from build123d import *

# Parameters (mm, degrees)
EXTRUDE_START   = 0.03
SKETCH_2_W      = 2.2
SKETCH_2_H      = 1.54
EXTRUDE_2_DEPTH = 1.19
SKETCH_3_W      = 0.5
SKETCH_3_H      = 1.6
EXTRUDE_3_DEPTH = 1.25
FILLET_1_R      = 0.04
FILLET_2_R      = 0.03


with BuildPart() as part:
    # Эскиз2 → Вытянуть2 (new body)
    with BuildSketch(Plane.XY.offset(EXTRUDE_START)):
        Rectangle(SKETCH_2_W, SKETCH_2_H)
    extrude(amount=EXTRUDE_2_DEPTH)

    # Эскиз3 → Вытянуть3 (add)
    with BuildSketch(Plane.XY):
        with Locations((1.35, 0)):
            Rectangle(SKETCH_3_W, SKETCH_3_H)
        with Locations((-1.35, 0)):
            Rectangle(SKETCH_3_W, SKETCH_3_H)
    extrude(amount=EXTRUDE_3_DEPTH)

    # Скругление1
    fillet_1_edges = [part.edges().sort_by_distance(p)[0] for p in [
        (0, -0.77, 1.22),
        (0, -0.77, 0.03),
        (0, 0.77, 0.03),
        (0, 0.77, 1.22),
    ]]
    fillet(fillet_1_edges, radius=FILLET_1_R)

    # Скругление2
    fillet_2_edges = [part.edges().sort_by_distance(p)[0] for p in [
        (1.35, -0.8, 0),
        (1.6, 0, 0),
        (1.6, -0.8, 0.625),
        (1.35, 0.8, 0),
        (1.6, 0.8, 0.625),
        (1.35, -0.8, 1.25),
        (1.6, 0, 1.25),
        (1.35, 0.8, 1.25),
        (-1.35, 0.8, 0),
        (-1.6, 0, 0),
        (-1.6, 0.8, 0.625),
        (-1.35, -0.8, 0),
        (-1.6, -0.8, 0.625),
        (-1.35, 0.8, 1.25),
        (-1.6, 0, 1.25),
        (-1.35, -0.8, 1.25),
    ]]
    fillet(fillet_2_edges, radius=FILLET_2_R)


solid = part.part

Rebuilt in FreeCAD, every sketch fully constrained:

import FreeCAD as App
import Part
import Sketcher


def edges_at(feature, points):
    """Names of the edges that pass closest to the given points."""
    edges = feature.Shape.Edges
    near = lambda p: min(range(len(edges)), key=lambda i: edges[i].distToShape(Part.Vertex(*p))[0])
    return sorted({f"Edge{near(p) + 1}" for p in points})


def add_polygon(sketch, points):
    """Adds a closed chain of lines whose ends are joined by coincident constraints."""
    first, n = sketch.GeometryCount, len(points)
    for a, b in zip(points, points[1:] + points[:1]):
        sketch.addGeometry(Part.LineSegment(App.Vector(*a, 0), App.Vector(*b, 0)), False)
    for i in range(n):
        sketch.addConstraint(Sketcher.Constraint("Coincident", first + i, 2, first + (i + 1) % n, 1))

doc = App.newDocument("Part")
params = doc.addObject("Spreadsheet::Sheet", "Params")
for row, (alias, value) in enumerate([
    ("sketch1_width", "2.2 mm"),
    ("sketch1_height", "1.54 mm"),
    ("pad1_length", "1.19 mm"),
    ("sketch2_width", "0.5 mm"),
    ("sketch2_height", "1.6 mm"),
    ("pad2_length", "1.25 mm"),
    ("fillet_radius", "0.04 mm"),
    ("fillet2_radius", "0.03 mm"),
], start=1):
    params.set(f"A{row}", alias)
    params.set(f"B{row}", "=" + value)
    params.setAlias(f"B{row}", alias)

body = doc.addObject("PartDesign::Body", "Body")

sketch1 = body.newObject("Sketcher::SketchObject", "Sketch")
sketch1.AttachmentSupport = (doc.getObject("XY_Plane"), [""])
sketch1.MapMode = "FlatFace"
sketch1.AttachmentOffset = App.Placement(App.Vector(0, 0, 0.03), App.Rotation())
add_polygon(sketch1, [(-1.1, 0.8), (-1.1, -0.8), (1.1, -0.8), (1.1, 0.8)])
sketch1.addConstraint([
    Sketcher.Constraint("Vertical", 0),
    Sketcher.Constraint("Horizontal", 1),
    Sketcher.Constraint("Vertical", 2),
    Sketcher.Constraint("Horizontal", 3),
    Sketcher.Constraint("Symmetric", 0, 2, 2, 2, -1, 1),
    Sketcher.Constraint("DistanceX", 1, 1, 1, 2, 2.2),
    Sketcher.Constraint("DistanceY", 0, 2, 0, 1, 1.54),
])
sketch1.setExpression("Constraints[9]", "Params.sketch1_width")
sketch1.setExpression("Constraints[10]", "Params.sketch1_height")
pad1 = body.newObject("PartDesign::Pad", "Pad")
pad1.Profile = sketch1
pad1.setExpression("Length", "Params.pad1_length")

sketch2 = body.newObject("Sketcher::SketchObject", "Sketch001")
sketch2.AttachmentSupport = (doc.getObject("XY_Plane"), [""])
sketch2.MapMode = "FlatFace"
add_polygon(sketch2, [(1.1, 0.8), (1.1, -0.8), (1.6, -0.8), (1.6, 0.8)])
add_polygon(sketch2, [(-1.6, 0.8), (-1.6, -0.8), (-1.1, -0.8), (-1.1, 0.8)])
sketch2.addConstraint([
    Sketcher.Constraint("Vertical", 0),
    Sketcher.Constraint("Horizontal", 1),
    Sketcher.Constraint("Vertical", 2),
    Sketcher.Constraint("Horizontal", 3),
    Sketcher.Constraint("Vertical", 4),
    Sketcher.Constraint("Horizontal", 5),
    Sketcher.Constraint("Vertical", 6),
    Sketcher.Constraint("Horizontal", 7),
    Sketcher.Constraint("Symmetric", 2, 2, 4, 2, -1, 1),
    Sketcher.Constraint("Symmetric", 0, 2, 6, 2, -1, 1),
    Sketcher.Constraint("Horizontal", 1, 2, 4, 2),
    Sketcher.Constraint("DistanceX", 1, 1, 1, 2, 0.5),
    Sketcher.Constraint("DistanceY", 0, 2, 0, 1, 1.6),
    Sketcher.Constraint("DistanceX", -1, 1, 0, 2, 1.1),
])
sketch2.setExpression("Constraints[19]", "Params.sketch2_width")
sketch2.setExpression("Constraints[20]", "Params.sketch2_height")
pad2 = body.newObject("PartDesign::Pad", "Pad001")
pad2.Profile = sketch2
pad2.setExpression("Length", "Params.pad2_length")
doc.recompute()

fillet = body.newObject("PartDesign::Fillet", "Fillet")
fillet.Base = (pad2, edges_at(pad2, [
    (0, -0.77, 1.22),
    (0, -0.77, 0.03),
    (0, 0.77, 0.03),
    (0, 0.77, 1.22),
]))
fillet.setExpression("Radius", "Params.fillet_radius")
doc.recompute()

fillet2 = body.newObject("PartDesign::Fillet", "Fillet001")
fillet2.Base = (fillet, edges_at(fillet, [
    (1.35, -0.8, 0),
    (1.6, 0, 0),
    (1.6, -0.8, 0.625),
    (1.35, 0.8, 0),
    (1.6, 0.8, 0.625),
    (1.35, -0.8, 1.25),
    (1.6, 0, 1.25),
    (1.35, 0.8, 1.25),
    (-1.35, 0.8, 0),
    (-1.6, 0, 0),
    (-1.6, 0.8, 0.625),
    (-1.35, -0.8, 0),
    (-1.6, -0.8, 0.625),
    (-1.35, 0.8, 1.25),
    (-1.6, 0, 1.25),
    (-1.35, -0.8, 1.25),
]))
fillet2.setExpression("Radius", "Params.fillet2_radius")

doc.recompute()
